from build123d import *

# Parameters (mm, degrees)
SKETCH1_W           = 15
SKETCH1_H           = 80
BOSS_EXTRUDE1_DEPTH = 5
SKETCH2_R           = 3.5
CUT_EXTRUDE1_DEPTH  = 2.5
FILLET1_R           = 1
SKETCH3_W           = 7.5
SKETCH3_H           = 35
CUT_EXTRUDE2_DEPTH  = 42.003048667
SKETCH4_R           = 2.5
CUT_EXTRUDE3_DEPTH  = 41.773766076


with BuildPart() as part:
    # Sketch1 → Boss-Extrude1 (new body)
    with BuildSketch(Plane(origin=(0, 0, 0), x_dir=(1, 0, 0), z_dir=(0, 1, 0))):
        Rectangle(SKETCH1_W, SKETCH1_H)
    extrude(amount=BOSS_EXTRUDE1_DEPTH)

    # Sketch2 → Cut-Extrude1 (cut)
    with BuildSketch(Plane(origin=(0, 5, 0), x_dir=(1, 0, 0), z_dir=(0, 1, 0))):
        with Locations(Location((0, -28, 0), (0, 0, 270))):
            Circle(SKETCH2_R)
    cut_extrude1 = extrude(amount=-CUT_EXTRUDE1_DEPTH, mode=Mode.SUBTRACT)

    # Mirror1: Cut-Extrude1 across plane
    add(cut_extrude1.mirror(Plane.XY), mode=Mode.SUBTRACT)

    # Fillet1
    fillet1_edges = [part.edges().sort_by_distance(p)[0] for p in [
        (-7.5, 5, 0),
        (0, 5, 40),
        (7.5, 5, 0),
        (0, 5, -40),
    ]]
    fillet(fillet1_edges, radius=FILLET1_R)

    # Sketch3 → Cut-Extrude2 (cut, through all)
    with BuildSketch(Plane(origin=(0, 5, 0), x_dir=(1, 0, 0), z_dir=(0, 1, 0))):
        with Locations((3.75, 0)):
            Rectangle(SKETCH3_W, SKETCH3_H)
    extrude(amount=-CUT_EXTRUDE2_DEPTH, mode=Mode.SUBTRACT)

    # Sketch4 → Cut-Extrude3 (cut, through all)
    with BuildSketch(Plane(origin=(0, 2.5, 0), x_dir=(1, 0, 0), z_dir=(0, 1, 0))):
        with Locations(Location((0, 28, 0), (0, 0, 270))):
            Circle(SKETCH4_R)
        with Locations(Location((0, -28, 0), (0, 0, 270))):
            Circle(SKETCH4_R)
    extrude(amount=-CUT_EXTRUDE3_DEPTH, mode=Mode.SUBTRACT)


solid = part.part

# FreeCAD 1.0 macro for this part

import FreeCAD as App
import Part
import Sketcher


def edges_at(feature, points):
    """Names of the edges that pass closest to the given points."""
    edges = feature.Shape.Edges
    near = lambda p: min(range(len(edges)), key=lambda i: edges[i].distToShape(Part.Vertex(*p))[0])
    return sorted({f"Edge{near(p) + 1}" for p in points})


def add_polygon(sketch, points):
    """Adds a closed chain of lines whose ends are joined by coincident constraints."""
    first, n = sketch.GeometryCount, len(points)
    for a, b in zip(points, points[1:] + points[:1]):
        sketch.addGeometry(Part.LineSegment(App.Vector(*a, 0), App.Vector(*b, 0)), False)
    for i in range(n):
        sketch.addConstraint(Sketcher.Constraint("Coincident", first + i, 2, first + (i + 1) % n, 1))

doc = App.newDocument("Part")
params = doc.addObject("Spreadsheet::Sheet", "Params")
for row, (alias, value) in enumerate([
    ("sketch1_width", "15 mm"),
    ("sketch1_height", "80 mm"),
    ("pad1_length", "5 mm"),
    ("sketch2_diameter", "7 mm"),
    ("pocket1_length", "2.5 mm"),
    ("fillet_radius", "1 mm"),
    ("sketch3_height", "35 mm"),
    ("sketch3_width", "7.5 mm"),
    ("sketch4_diameter", "5 mm"),
], start=1):
    params.set(f"A{row}", alias)
    params.set(f"B{row}", "=" + value)
    params.setAlias(f"B{row}", alias)

body = doc.addObject("PartDesign::Body", "Body")

# Sketch on XZ plane
sketch1 = body.newObject("Sketcher::SketchObject", "Sketch")
sketch1.AttachmentSupport = (doc.getObject("XZ_Plane"), [""])
sketch1.MapMode = "FlatFace"
add_polygon(sketch1, [(-8, -40), (-8, 40), (8, 40), (8, -40)])  # lines 0-3
sketch1.addConstraint(Sketcher.Constraint("Vertical", 0))
sketch1.addConstraint(Sketcher.Constraint("Horizontal", 1))
sketch1.addConstraint(Sketcher.Constraint("Vertical", 2))
sketch1.addConstraint(Sketcher.Constraint("Horizontal", 3))
sketch1.addConstraint(Sketcher.Constraint("Symmetric", 0, 2, 2, 2, -1, 1))
sketch1.addConstraint(Sketcher.Constraint("DistanceX", 1, 1, 1, 2, 15.0))
sketch1.addConstraint(Sketcher.Constraint("DistanceY", 0, 1, 0, 2, 80.0))
sketch1.setExpression("Constraints[9]", "Params.sketch1_width")
sketch1.setExpression("Constraints[10]", "Params.sketch1_height")
pad1 = body.newObject("PartDesign::Pad", "Pad")
pad1.Profile = sketch1
pad1.setExpression("Length", "Params.pad1_length")
pad1.Reversed = True

# Sketch on XZ plane
sketch2 = body.newObject("Sketcher::SketchObject", "Sketch001")
sketch2.AttachmentSupport = (doc.getObject("XZ_Plane"), [""])
sketch2.MapMode = "FlatFace"
sketch2.AttachmentOffset = App.Placement(App.Vector(0, 0, -5), App.Rotation())
sketch2.addGeometry(Part.Circle(App.Vector(0, 28, 0), App.Vector(0, 0, 1), 3.5), False)
sketch2.addConstraint(Sketcher.Constraint("PointOnObject", 0, 3, -2))
sketch2.addConstraint(Sketcher.Constraint("Diameter", 0, 7.0))
sketch2.addConstraint(Sketcher.Constraint("DistanceY", -1, 1, 0, 3, 28.0))
sketch2.setExpression("Constraints[1]", "Params.sketch2_diameter")
pocket1 = body.newObject("PartDesign::Pocket", "Pocket")
pocket1.Profile = sketch2
pocket1.setExpression("Length", "Params.pocket1_length")
pocket1.Reversed = True
doc.recompute()

mirrored = body.newObject("PartDesign::Mirrored", "Mirrored")
mirrored.Originals = [pocket1]
mirrored.MirrorPlane = (doc.getObject("XY_Plane"), [""])
body.Tip = mirrored
doc.recompute()

fillet = body.newObject("PartDesign::Fillet", "Fillet")
fillet.Base = (mirrored, edges_at(mirrored, [
    (-7.5, 5, 0),
    (0, 5, 40),
    (7.5, 5, 0),
    (0, 5, -40),
]))
fillet.setExpression("Radius", "Params.fillet_radius")

# Sketch on XZ plane
sketch3 = body.newObject("Sketcher::SketchObject", "Sketch002")
sketch3.AttachmentSupport = (doc.getObject("XZ_Plane"), [""])
sketch3.MapMode = "FlatFace"
sketch3.AttachmentOffset = App.Placement(App.Vector(0, 0, -5), App.Rotation())
add_polygon(sketch3, [(0, -18), (0, 18), (8, 18), (8, -18)])  # lines 0-3
sketch3.addConstraint(Sketcher.Constraint("Vertical", 0))
sketch3.addConstraint(Sketcher.Constraint("Horizontal", 1))
sketch3.addConstraint(Sketcher.Constraint("Vertical", 2))
sketch3.addConstraint(Sketcher.Constraint("Horizontal", 3))
sketch3.addConstraint(Sketcher.Constraint("Symmetric", 0, 2, 3, 2, -1, 1))
sketch3.addConstraint(Sketcher.Constraint("DistanceY", 0, 1, 0, 2, 35.0))
sketch3.addConstraint(Sketcher.Constraint("DistanceX", 1, 1, 1, 2, 7.5))
sketch3.setExpression("Constraints[9]", "Params.sketch3_height")
sketch3.setExpression("Constraints[10]", "Params.sketch3_width")
pocket2 = body.newObject("PartDesign::Pocket", "Pocket001")
pocket2.Profile = sketch3
pocket2.Type = "ThroughAll"
pocket2.Reversed = True

# Sketch on XZ plane
sketch4 = body.newObject("Sketcher::SketchObject", "Sketch003")
sketch4.AttachmentSupport = (doc.getObject("XZ_Plane"), [""])
sketch4.MapMode = "FlatFace"
sketch4.AttachmentOffset = App.Placement(App.Vector(0, 0, -2.5), App.Rotation())
sketch4.addGeometry(Part.Circle(App.Vector(0, -28, 0), App.Vector(0, 0, 1), 2.5), False)
sketch4.addGeometry(Part.Circle(App.Vector(0, 28, 0), App.Vector(0, 0, 1), 2.5), False)
sketch4.addConstraint(Sketcher.Constraint("Equal", 0, 1))
sketch4.addConstraint(Sketcher.Constraint("Symmetric", 0, 3, 1, 3, -1, 1))
sketch4.addConstraint(Sketcher.Constraint("PointOnObject", 0, 3, -2))
sketch4.addConstraint(Sketcher.Constraint("Diameter", 0, 5.0))
sketch4.addConstraint(Sketcher.Constraint("DistanceY", 0, 3, -1, 1, 28.0))
sketch4.setExpression("Constraints[3]", "Params.sketch4_diameter")
pocket3 = body.newObject("PartDesign::Pocket", "Pocket002")
pocket3.Profile = sketch4
pocket3.Type = "ThroughAll"
pocket3.Reversed = True

doc.recompute()
